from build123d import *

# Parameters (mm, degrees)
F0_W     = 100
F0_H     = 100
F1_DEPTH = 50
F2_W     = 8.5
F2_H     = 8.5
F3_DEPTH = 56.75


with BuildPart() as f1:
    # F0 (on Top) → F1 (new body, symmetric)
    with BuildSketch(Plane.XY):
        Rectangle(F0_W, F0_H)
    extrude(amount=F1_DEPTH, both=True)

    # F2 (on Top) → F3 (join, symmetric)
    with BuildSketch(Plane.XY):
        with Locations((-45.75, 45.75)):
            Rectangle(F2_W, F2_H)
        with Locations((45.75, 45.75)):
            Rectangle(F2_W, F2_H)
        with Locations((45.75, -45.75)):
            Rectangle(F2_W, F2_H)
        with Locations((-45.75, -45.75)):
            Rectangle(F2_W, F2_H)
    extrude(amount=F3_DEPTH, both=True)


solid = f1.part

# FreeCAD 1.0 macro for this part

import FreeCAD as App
import Part
import Sketcher

V = App.Vector

doc = App.newDocument("Part")
params = doc.addObject("Spreadsheet::Sheet", "Params")
for row, (alias, value) in enumerate([
    ("sketch1_width", "100 mm"),
    ("pad1_length", "100 mm"),
    ("sketch2_width", "8.5 mm"),
    ("pad2_length", "113.5 mm"),
], start=1):
    params.set(f"A{row}", alias)
    params.set(f"B{row}", "=" + value)
    params.setAlias(f"B{row}", alias)

body = doc.addObject("PartDesign::Body", "Body")

# Sketch on XY plane
sketch1 = body.newObject("Sketcher::SketchObject", "Sketch")
sketch1.AttachmentSupport = (doc.getObject("XY_Plane"), [""])
sketch1.MapMode = "FlatFace"
sketch1.addGeometry([
    Part.LineSegment(V(-50, 50, 0), V(-50, -50, 0)),
    Part.LineSegment(V(-50, -50, 0), V(50, -50, 0)),
    Part.LineSegment(V(50, -50, 0), V(50, 50, 0)),
    Part.LineSegment(V(50, 50, 0), V(-50, 50, 0)),
], False)
sketch1.addConstraint([
    Sketcher.Constraint("Coincident", 0, 2, 1, 1),
    Sketcher.Constraint("Coincident", 1, 2, 2, 1),
    Sketcher.Constraint("Coincident", 2, 2, 3, 1),
    Sketcher.Constraint("Coincident", 3, 2, 0, 1),
    Sketcher.Constraint("Vertical", 0),
    Sketcher.Constraint("Horizontal", 1),
    Sketcher.Constraint("Vertical", 2),
    Sketcher.Constraint("Horizontal", 3),
    Sketcher.Constraint("Symmetric", 0, 2, 2, 2, -1, 1),
    Sketcher.Constraint("Equal", 3, 0),
    Sketcher.Constraint("DistanceX", 1, 1, 1, 2, 100.0),
])
sketch1.setExpression("Constraints[10]", "Params.sketch1_width")
pad1 = body.newObject("PartDesign::Pad", "Pad")
pad1.Profile = sketch1
pad1.setExpression("Length", "Params.pad1_length")
pad1.Midplane = True

# Sketch on XY plane
sketch2 = body.newObject("Sketcher::SketchObject", "Sketch001")
sketch2.AttachmentSupport = (doc.getObject("XY_Plane"), [""])
sketch2.MapMode = "FlatFace"
sketch2.addGeometry([
    Part.LineSegment(V(-50, 50, 0), V(-50, 42, 0)),  # 0
    Part.LineSegment(V(-50, 42, 0), V(-42, 42, 0)),  # 1
    Part.LineSegment(V(-42, 42, 0), V(-42, 50, 0)),  # 2
    Part.LineSegment(V(-42, 50, 0), V(-50, 50, 0)),  # 3
    Part.LineSegment(V(42, 50, 0), V(42, 42, 0)),  # 4
    Part.LineSegment(V(42, 42, 0), V(50, 42, 0)),  # 5
    Part.LineSegment(V(50, 42, 0), V(50, 50, 0)),  # 6
    Part.LineSegment(V(50, 50, 0), V(42, 50, 0)),  # 7
    Part.LineSegment(V(42, -42, 0), V(42, -50, 0)),  # 8
    Part.LineSegment(V(42, -50, 0), V(50, -50, 0)),  # 9
    Part.LineSegment(V(50, -50, 0), V(50, -42, 0)),  # 10
    Part.LineSegment(V(50, -42, 0), V(42, -42, 0)),  # 11
    Part.LineSegment(V(-50, -42, 0), V(-50, -50, 0)),  # 12
    Part.LineSegment(V(-50, -50, 0), V(-42, -50, 0)),  # 13
    Part.LineSegment(V(-42, -50, 0), V(-42, -42, 0)),  # 14
    Part.LineSegment(V(-42, -42, 0), V(-50, -42, 0)),  # 15
], False)
sketch2.addConstraint([
    Sketcher.Constraint("Coincident", 0, 2, 1, 1),
    Sketcher.Constraint("Coincident", 1, 2, 2, 1),
    Sketcher.Constraint("Coincident", 2, 2, 3, 1),
    Sketcher.Constraint("Coincident", 3, 2, 0, 1),
    Sketcher.Constraint("Coincident", 4, 2, 5, 1),
    Sketcher.Constraint("Coincident", 5, 2, 6, 1),
    Sketcher.Constraint("Coincident", 6, 2, 7, 1),
    Sketcher.Constraint("Coincident", 7, 2, 4, 1),
    Sketcher.Constraint("Coincident", 8, 2, 9, 1),
    Sketcher.Constraint("Coincident", 9, 2, 10, 1),
    Sketcher.Constraint("Coincident", 10, 2, 11, 1),
    Sketcher.Constraint("Coincident", 11, 2, 8, 1),
    Sketcher.Constraint("Coincident", 12, 2, 13, 1),
    Sketcher.Constraint("Coincident", 13, 2, 14, 1),
    Sketcher.Constraint("Coincident", 14, 2, 15, 1),
    Sketcher.Constraint("Coincident", 15, 2, 12, 1),
    Sketcher.Constraint("Vertical", 0),
    Sketcher.Constraint("Horizontal", 1),
    Sketcher.Constraint("Vertical", 2),
    Sketcher.Constraint("Horizontal", 3),
    Sketcher.Constraint("Vertical", 4),
    Sketcher.Constraint("Horizontal", 5),
    Sketcher.Constraint("Vertical", 6),
    Sketcher.Constraint("Horizontal", 7),
    Sketcher.Constraint("Vertical", 8),
    Sketcher.Constraint("Horizontal", 9),
    Sketcher.Constraint("Vertical", 10),
    Sketcher.Constraint("Horizontal", 11),
    Sketcher.Constraint("Vertical", 12),
    Sketcher.Constraint("Horizontal", 13),
    Sketcher.Constraint("Vertical", 14),
    Sketcher.Constraint("Horizontal", 15),
    Sketcher.Constraint("Symmetric", 2, 2, 8, 2, -1, 1),
    Sketcher.Constraint("Symmetric", 0, 2, 10, 2, -1, 1),
    Sketcher.Constraint("Symmetric", 6, 2, 12, 2, -1, 1),
    Sketcher.Constraint("Symmetric", 4, 2, 14, 2, -1, 1),
    Sketcher.Constraint("Symmetric", 1, 2, 4, 2, -2),
    Sketcher.Constraint("Symmetric", 3, 2, 6, 2, -2),
    Sketcher.Constraint("Equal", 15, 0),
    Sketcher.Constraint("DistanceX", 1, 1, 1, 2, 8.5),
    Sketcher.Constraint("DistanceX", 0, 2, -1, 1, 50.0),
    Sketcher.Constraint("DistanceY", -1, 1, 2, 2, 50.0),
])
sketch2.setExpression("Constraints[39]", "Params.sketch2_width")
pad2 = body.newObject("PartDesign::Pad", "Pad001")
pad2.Profile = sketch2
pad2.setExpression("Length", "Params.pad2_length")
pad2.Midplane = True

doc.recompute()
